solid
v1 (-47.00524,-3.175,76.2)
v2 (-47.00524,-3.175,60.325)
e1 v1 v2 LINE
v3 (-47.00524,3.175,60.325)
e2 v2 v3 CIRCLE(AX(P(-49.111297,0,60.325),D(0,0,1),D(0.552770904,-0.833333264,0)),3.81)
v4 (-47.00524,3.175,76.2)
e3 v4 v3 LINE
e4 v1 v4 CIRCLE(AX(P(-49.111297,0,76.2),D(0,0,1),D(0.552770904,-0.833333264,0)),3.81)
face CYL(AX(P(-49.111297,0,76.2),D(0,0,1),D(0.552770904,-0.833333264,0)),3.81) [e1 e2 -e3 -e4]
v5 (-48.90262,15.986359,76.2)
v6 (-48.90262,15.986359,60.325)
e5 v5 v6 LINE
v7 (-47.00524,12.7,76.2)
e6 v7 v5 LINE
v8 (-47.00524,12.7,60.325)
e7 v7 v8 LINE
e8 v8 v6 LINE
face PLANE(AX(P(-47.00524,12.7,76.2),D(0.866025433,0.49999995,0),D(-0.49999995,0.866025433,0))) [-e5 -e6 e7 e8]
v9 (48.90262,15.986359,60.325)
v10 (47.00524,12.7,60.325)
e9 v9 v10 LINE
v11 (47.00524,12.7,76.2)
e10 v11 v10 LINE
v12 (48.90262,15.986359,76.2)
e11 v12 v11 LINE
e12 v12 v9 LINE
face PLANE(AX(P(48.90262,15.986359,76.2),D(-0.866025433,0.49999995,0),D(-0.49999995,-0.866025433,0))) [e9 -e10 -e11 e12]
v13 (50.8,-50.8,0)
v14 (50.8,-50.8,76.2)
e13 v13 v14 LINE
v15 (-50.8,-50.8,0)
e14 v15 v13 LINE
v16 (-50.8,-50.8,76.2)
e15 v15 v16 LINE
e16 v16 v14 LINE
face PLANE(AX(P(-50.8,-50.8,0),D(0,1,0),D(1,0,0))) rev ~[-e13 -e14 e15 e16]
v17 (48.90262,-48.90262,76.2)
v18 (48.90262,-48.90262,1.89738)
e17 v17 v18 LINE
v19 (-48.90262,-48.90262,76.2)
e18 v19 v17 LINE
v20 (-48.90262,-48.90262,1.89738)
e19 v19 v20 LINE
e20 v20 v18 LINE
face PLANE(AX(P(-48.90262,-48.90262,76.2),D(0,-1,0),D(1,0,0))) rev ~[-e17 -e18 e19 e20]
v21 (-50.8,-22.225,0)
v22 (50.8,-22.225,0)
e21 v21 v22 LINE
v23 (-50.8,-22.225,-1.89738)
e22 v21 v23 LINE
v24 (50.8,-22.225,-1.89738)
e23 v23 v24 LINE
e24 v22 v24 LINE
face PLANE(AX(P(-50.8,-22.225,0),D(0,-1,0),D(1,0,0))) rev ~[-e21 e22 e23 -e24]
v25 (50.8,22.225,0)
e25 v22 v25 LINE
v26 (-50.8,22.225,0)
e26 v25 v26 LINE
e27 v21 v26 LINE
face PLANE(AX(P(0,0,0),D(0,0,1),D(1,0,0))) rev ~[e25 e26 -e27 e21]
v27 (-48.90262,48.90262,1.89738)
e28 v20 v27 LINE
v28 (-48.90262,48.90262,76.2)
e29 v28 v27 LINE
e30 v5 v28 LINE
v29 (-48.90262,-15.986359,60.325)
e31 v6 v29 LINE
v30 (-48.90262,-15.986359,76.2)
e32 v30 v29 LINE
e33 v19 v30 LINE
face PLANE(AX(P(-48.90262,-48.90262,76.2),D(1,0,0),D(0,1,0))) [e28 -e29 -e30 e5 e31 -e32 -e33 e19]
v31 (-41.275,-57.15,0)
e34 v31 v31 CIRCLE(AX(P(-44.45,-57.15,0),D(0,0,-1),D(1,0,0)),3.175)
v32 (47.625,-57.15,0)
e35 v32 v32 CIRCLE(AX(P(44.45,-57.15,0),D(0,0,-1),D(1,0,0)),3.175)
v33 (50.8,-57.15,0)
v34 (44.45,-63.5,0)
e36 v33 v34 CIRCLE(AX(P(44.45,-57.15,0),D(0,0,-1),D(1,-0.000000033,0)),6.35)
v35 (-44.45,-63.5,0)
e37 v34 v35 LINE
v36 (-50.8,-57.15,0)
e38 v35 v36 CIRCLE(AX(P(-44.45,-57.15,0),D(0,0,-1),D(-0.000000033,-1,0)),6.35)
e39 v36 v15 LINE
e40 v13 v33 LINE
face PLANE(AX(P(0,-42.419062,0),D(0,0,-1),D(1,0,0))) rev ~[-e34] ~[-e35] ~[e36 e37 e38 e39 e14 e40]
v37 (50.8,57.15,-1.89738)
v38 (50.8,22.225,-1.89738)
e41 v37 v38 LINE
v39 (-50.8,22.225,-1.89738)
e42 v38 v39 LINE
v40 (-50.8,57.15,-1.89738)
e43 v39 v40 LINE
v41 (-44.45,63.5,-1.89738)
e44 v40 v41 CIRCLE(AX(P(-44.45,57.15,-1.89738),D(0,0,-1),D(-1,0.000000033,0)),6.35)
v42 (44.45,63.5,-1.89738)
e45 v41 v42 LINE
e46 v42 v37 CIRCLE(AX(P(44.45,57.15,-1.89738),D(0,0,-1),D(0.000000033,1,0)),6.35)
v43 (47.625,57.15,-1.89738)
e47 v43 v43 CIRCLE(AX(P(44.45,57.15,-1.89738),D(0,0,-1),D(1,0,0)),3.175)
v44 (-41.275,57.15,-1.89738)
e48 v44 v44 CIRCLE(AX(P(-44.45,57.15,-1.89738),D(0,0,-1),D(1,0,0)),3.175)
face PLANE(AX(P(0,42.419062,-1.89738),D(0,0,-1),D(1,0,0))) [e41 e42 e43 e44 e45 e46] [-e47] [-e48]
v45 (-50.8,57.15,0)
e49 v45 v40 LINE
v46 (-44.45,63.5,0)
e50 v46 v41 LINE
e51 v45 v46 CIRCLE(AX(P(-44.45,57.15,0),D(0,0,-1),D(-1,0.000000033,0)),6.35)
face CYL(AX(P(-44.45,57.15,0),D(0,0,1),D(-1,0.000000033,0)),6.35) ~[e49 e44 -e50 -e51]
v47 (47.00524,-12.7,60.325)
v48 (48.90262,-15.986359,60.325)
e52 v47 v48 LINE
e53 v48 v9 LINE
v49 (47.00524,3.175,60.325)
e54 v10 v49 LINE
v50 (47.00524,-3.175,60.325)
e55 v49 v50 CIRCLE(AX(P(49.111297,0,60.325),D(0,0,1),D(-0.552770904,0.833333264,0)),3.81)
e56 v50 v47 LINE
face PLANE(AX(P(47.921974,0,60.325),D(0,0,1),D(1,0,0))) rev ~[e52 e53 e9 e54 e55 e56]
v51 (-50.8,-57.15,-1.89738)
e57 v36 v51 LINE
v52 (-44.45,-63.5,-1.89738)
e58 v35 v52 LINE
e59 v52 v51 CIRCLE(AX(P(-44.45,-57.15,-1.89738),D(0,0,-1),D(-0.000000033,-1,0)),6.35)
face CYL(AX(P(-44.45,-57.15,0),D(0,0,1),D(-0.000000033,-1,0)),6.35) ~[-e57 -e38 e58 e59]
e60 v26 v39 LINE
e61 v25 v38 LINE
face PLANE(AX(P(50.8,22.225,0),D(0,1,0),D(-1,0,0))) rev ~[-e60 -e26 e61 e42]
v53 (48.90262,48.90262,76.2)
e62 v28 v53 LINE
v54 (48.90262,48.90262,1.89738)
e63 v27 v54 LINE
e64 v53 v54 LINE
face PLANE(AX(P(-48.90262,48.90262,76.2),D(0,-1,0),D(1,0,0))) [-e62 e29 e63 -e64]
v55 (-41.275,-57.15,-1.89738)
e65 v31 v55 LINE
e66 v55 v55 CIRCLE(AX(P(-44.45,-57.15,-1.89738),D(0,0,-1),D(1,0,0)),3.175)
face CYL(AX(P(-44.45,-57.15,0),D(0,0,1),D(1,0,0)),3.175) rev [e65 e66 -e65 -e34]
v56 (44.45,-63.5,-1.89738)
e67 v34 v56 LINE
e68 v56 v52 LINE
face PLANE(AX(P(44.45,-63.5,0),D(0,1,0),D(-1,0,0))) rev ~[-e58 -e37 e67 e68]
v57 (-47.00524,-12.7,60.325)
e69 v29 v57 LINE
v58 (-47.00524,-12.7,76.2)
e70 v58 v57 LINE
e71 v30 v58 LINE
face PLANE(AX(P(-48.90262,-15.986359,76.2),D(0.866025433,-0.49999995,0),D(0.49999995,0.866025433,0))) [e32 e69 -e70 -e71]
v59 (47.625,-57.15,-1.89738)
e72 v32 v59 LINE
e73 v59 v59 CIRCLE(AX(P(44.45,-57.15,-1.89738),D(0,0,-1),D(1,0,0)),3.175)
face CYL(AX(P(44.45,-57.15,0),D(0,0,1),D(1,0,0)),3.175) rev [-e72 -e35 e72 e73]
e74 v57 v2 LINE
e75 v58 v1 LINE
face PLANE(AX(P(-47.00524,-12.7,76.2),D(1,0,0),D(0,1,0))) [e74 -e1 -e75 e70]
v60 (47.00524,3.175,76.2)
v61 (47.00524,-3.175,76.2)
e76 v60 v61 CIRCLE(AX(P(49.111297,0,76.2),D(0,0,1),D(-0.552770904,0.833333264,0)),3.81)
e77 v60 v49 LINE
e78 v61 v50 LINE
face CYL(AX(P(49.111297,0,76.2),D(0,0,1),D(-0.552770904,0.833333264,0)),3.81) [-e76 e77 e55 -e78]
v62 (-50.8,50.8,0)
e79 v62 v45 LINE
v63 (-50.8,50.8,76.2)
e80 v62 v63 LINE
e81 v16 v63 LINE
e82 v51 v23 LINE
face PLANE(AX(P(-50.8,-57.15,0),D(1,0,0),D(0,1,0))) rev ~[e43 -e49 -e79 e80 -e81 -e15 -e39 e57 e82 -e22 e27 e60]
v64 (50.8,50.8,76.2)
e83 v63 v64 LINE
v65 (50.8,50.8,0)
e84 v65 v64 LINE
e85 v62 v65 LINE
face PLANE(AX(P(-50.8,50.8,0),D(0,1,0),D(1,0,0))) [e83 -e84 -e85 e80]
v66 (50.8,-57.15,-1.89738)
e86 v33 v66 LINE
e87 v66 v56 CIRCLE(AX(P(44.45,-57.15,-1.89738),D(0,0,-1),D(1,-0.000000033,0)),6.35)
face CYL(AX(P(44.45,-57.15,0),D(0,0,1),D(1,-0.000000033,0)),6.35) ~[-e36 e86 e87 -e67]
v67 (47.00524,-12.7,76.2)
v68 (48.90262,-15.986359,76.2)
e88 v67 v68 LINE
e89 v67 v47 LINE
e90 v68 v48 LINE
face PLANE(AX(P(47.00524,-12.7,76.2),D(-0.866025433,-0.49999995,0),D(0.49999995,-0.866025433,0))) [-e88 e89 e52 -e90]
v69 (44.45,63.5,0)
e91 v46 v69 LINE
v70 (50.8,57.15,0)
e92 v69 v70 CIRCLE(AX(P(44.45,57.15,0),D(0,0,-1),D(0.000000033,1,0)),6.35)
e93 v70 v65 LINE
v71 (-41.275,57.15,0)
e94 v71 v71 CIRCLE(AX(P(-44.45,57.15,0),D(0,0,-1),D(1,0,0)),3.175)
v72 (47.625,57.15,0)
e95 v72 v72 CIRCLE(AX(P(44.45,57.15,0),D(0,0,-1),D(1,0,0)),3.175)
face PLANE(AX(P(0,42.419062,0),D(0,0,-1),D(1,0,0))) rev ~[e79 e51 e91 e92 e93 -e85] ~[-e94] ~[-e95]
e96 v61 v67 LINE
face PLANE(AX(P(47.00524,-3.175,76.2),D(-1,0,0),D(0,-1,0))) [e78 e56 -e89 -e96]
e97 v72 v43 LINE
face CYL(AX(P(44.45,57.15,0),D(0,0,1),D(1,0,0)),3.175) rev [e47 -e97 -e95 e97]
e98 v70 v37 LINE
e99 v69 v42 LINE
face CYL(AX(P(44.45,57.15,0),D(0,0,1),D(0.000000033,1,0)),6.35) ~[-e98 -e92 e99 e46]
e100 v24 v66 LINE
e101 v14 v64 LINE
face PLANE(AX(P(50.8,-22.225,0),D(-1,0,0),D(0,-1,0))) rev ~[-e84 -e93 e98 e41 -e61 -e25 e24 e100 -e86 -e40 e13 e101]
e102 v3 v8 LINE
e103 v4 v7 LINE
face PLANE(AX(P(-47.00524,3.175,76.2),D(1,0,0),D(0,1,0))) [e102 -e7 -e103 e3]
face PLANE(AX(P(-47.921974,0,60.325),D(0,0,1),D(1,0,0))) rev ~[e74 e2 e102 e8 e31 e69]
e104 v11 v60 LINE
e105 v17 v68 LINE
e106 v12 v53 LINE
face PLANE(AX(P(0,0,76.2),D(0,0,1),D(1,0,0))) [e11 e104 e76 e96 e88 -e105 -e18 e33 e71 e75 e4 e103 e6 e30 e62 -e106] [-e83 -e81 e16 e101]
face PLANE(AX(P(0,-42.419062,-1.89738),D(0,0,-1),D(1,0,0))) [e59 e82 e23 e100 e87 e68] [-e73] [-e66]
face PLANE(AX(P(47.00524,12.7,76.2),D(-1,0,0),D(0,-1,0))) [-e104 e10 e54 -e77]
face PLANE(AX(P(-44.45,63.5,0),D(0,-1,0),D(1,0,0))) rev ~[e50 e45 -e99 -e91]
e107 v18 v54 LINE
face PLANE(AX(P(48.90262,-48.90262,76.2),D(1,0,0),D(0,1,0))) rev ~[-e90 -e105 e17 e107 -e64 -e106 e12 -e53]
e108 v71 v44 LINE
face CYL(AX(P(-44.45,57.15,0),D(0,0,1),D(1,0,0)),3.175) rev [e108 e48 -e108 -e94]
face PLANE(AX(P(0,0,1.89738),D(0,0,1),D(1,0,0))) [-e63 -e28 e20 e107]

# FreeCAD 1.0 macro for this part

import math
import FreeCAD as App
import Part
import Sketcher

V = App.Vector
Q = App.Units.Quantity

doc = App.newDocument("Part")
body = doc.addObject("PartDesign::Body", "Body")

# Sketch on XY plane
sketch1 = doc.addObject("Sketcher::SketchObject", "Sketch")
body.addObject(sketch1)
sketch1.AttachmentSupport = (doc.XY_Plane, [""])
sketch1.MapMode = "FlatFace"
sketch1.addGeometry(Part.LineSegment(V(-51, 51, 0), V(-51, -51, 0)), False)
sketch1.addGeometry(Part.LineSegment(V(-51, -51, 0), V(51, -51, 0)), False)
sketch1.addGeometry(Part.LineSegment(V(51, -51, 0), V(51, 51, 0)), False)
sketch1.addGeometry(Part.LineSegment(V(51, 51, 0), V(-51, 51, 0)), False)
sketch1.addConstraint(Sketcher.Constraint("Coincident", 0, 2, 1, 1))
sketch1.addConstraint(Sketcher.Constraint("Coincident", 1, 2, 2, 1))
sketch1.addConstraint(Sketcher.Constraint("Coincident", 2, 2, 3, 1))
sketch1.addConstraint(Sketcher.Constraint("Coincident", 3, 2, 0, 1))
sketch1.addConstraint(Sketcher.Constraint("Vertical", 0))
sketch1.addConstraint(Sketcher.Constraint("Horizontal", 1))
sketch1.addConstraint(Sketcher.Constraint("Vertical", 2))
sketch1.addConstraint(Sketcher.Constraint("Horizontal", 3))
sketch1.addConstraint(Sketcher.Constraint("Symmetric", 0, 2, 2, 2, -1, 1))
sketch1.addConstraint(Sketcher.Constraint("Equal", 3, 0))
sketch1.addConstraint(Sketcher.Constraint("DistanceX", 1, 1, 1, 2, Q("4 in")))
pad1 = doc.addObject("PartDesign::Pad", "Pad")
body.addObject(pad1)
pad1.Profile = sketch1
pad1.Length = Q("3 in")

# Sketch on XY plane
sketch2 = doc.addObject("Sketcher::SketchObject", "Sketch001")
body.addObject(sketch2)
sketch2.AttachmentSupport = (doc.XY_Plane, [""])
sketch2.MapMode = "FlatFace"
sketch2.AttachmentOffset = App.Placement(V(0, 0, 3 * 25.4), App.Rotation())
sketch2.addGeometry(Part.LineSegment(V(-49, 49, 0), V(-49, -49, 0)), False)
sketch2.addGeometry(Part.LineSegment(V(-49, -49, 0), V(49, -49, 0)), False)
sketch2.addGeometry(Part.LineSegment(V(49, -49, 0), V(49, 49, 0)), False)
sketch2.addGeometry(Part.LineSegment(V(49, 49, 0), V(-49, 49, 0)), False)
sketch2.addConstraint(Sketcher.Constraint("Coincident", 0, 2, 1, 1))
sketch2.addConstraint(Sketcher.Constraint("Coincident", 1, 2, 2, 1))
sketch2.addConstraint(Sketcher.Constraint("Coincident", 2, 2, 3, 1))
sketch2.addConstraint(Sketcher.Constraint("Coincident", 3, 2, 0, 1))
sketch2.addConstraint(Sketcher.Constraint("Vertical", 0))
sketch2.addConstraint(Sketcher.Constraint("Horizontal", 1))
sketch2.addConstraint(Sketcher.Constraint("Vertical", 2))
sketch2.addConstraint(Sketcher.Constraint("Horizontal", 3))
sketch2.addConstraint(Sketcher.Constraint("Symmetric", 0, 2, 2, 2, -1, 1))
sketch2.addConstraint(Sketcher.Constraint("Equal", 3, 0))
sketch2.addConstraint(Sketcher.Constraint("DistanceX", 1, 1, 1, 2, Q("3.8506 in")))
pocket1 = doc.addObject("PartDesign::Pocket", "Pocket")
body.addObject(pocket1)
pocket1.Profile = sketch2
pocket1.Length = Q("2.9253 in")

# Sketch on XY plane
sketch3 = doc.addObject("Sketcher::SketchObject", "Sketch002")
body.addObject(sketch3)
sketch3.AttachmentSupport = (doc.XY_Plane, [""])
sketch3.MapMode = "FlatFace"
sketch3.AttachmentOffset = App.Placement(V(0, 0, 3 * 25.4), App.Rotation())
sketch3.addGeometry(Part.LineSegment(V(-47, 12.7, 0), V(-48.9, 16, 0)), False)
sketch3.addGeometry(Part.LineSegment(V(-48.9, 16, 0), V(-48.9, -16, 0)), False)
sketch3.addGeometry(Part.LineSegment(V(-48.9, -16, 0), V(-47, -12.7, 0)), False)
sketch3.addGeometry(Part.LineSegment(V(-47, -12.7, 0), V(-47, -3.2, 0)), False)
sketch3.addGeometry(Part.ArcOfCircle(Part.Circle(V(-49.1, 0, 0), V(0, 0, 1), 3.8), math.radians(-56), math.radians(56)), False)
sketch3.addGeometry(Part.LineSegment(V(-47, 3.2, 0), V(-47, 12.7, 0)), False)
sketch3.addGeometry(Part.LineSegment(V(48.9, -16, 0), V(48.9, 16, 0)), False)
sketch3.addGeometry(Part.LineSegment(V(48.9, 16, 0), V(47, 12.7, 0)), False)
sketch3.addGeometry(Part.LineSegment(V(47, 12.7, 0), V(47, 3.2, 0)), False)
sketch3.addGeometry(Part.ArcOfCircle(Part.Circle(V(49.1, 0, 0), V(0, 0, 1), 3.8), math.radians(124), math.radians(236)), False)
sketch3.addGeometry(Part.LineSegment(V(47, -3.2, 0), V(47, -12.7, 0)), False)
sketch3.addGeometry(Part.LineSegment(V(47, -12.7, 0), V(48.9, -16, 0)), False)
sketch3.addConstraint(Sketcher.Constraint("Coincident", 0, 2, 1, 1))
sketch3.addConstraint(Sketcher.Constraint("Coincident", 1, 2, 2, 1))
sketch3.addConstraint(Sketcher.Constraint("Coincident", 2, 2, 3, 1))
sketch3.addConstraint(Sketcher.Constraint("Coincident", 3, 2, 4, 1))
sketch3.addConstraint(Sketcher.Constraint("Coincident", 4, 2, 5, 1))
sketch3.addConstraint(Sketcher.Constraint("Coincident", 5, 2, 0, 1))
sketch3.addConstraint(Sketcher.Constraint("Coincident", 6, 2, 7, 1))
sketch3.addConstraint(Sketcher.Constraint("Coincident", 7, 2, 8, 1))
sketch3.addConstraint(Sketcher.Constraint("Coincident", 8, 2, 9, 1))
sketch3.addConstraint(Sketcher.Constraint("Coincident", 9, 2, 10, 1))
sketch3.addConstraint(Sketcher.Constraint("Coincident", 10, 2, 11, 1))
sketch3.addConstraint(Sketcher.Constraint("Coincident", 11, 2, 6, 1))
sketch3.addConstraint(Sketcher.Constraint("Vertical", 1))
sketch3.addConstraint(Sketcher.Constraint("Vertical", 3))
sketch3.addConstraint(Sketcher.Constraint("Vertical", 5))
sketch3.addConstraint(Sketcher.Constraint("Vertical", 6))
sketch3.addConstraint(Sketcher.Constraint("Vertical", 8))
sketch3.addConstraint(Sketcher.Constraint("Vertical", 10))
sketch3.addConstraint(Sketcher.Constraint("Equal", 4, 9))
sketch3.addConstraint(Sketcher.Constraint("Symmetric", 4, 3, 9, 3, -1, 1))
sketch3.addConstraint(Sketcher.Constraint("Symmetric", 1, 2, 6, 2, -1, 1))
sketch3.addConstraint(Sketcher.Constraint("Symmetric", 2, 2, 7, 2, -1, 1))
sketch3.addConstraint(Sketcher.Constraint("Symmetric", 5, 2, 10, 2, -1, 1))
sketch3.addConstraint(Sketcher.Constraint("Symmetric", 5, 2, 7, 2, -2))
sketch3.addConstraint(Sketcher.Constraint("PointOnObject", 4, 3, -1))
sketch3.addConstraint(Sketcher.Constraint("Parallel", 0, 11))
sketch3.addConstraint(Sketcher.Constraint("Horizontal", 0, 2, 6, 2))
sketch3.addConstraint(Sketcher.Constraint("Radius", 4, Q("0.15 in")))
sketch3.addConstraint(Sketcher.Constraint("Angle", 0, Q("119.999997 deg")))
sketch3.addConstraint(Sketcher.Constraint("DistanceY", 2, 2, 5, 2, Q("1 in")))
sketch3.addConstraint(Sketcher.Constraint("DistanceY", 3, 1, 3, 2, Q("0.375 in")))
sketch3.addConstraint(Sketcher.Constraint("Distance", 0, Q("0.1494 in")))
sketch3.addConstraint(Sketcher.Constraint("DistanceX", 0, 2, -1, 1, Q("1.9253 in")))
pad2 = doc.addObject("PartDesign::Pad", "Pad001")
body.addObject(pad2)
pad2.Profile = sketch3
pad2.Length = Q("0.625 in")
pad2.Reversed = True

# Sketch on XY plane
sketch4 = doc.addObject("Sketcher::SketchObject", "Sketch003")
body.addObject(sketch4)
sketch4.AttachmentSupport = (doc.XY_Plane, [""])
sketch4.MapMode = "FlatFace"
sketch4.addGeometry(Part.LineSegment(V(-50.8, -57.1, 0), V(-50.8, -22.2, 0)), False)
sketch4.addGeometry(Part.LineSegment(V(-50.8, -22.2, 0), V(50.8, -22.2, 0)), False)
sketch4.addGeometry(Part.LineSegment(V(50.8, -22.2, 0), V(50.8, -57.1, 0)), False)
sketch4.addGeometry(Part.ArcOfCircle(Part.Circle(V(44.4, -57.1, 0), V(0, 0, 1), 6.4), math.radians(-90), math.radians(0)), False)
sketch4.addGeometry(Part.LineSegment(V(44.5, -63.5, 0), V(-44.5, -63.5, 0)), False)
sketch4.addGeometry(Part.ArcOfCircle(Part.Circle(V(-44.4, -57.1, 0), V(0, 0, 1), 6.4), math.radians(-180), math.radians(-90)), False)
sketch4.addGeometry(Part.Circle(V(-44.5, -57.1, 0), V(0, 0, 1), 3.2), False)
sketch4.addGeometry(Part.Circle(V(44.5, -57.1, 0), V(0, 0, 1), 3.2), False)
sketch4.addGeometry(Part.LineSegment(V(50.8, 22.2, 0), V(-50.8, 22.2, 0)), False)
sketch4.addGeometry(Part.LineSegment(V(-50.8, 22.2, 0), V(-50.8, 57.1, 0)), False)
sketch4.addGeometry(Part.ArcOfCircle(Part.Circle(V(-44.4, 57.1, 0), V(0, 0, 1), 6.4), math.radians(90), math.radians(180)), False)
sketch4.addGeometry(Part.LineSegment(V(-44.5, 63.5, 0), V(44.5, 63.5, 0)), False)
sketch4.addGeometry(Part.ArcOfCircle(Part.Circle(V(44.4, 57.1, 0), V(0, 0, 1), 6.4), math.radians(0), math.radians(90)), False)
sketch4.addGeometry(Part.LineSegment(V(50.8, 57.1, 0), V(50.8, 22.2, 0)), False)
sketch4.addGeometry(Part.Circle(V(-44.5, 57.1, 0), V(0, 0, 1), 3.2), False)
sketch4.addGeometry(Part.Circle(V(44.5, 57.1, 0), V(0, 0, 1), 3.2), False)
sketch4.addConstraint(Sketcher.Constraint("Coincident", 0, 2, 1, 1))
sketch4.addConstraint(Sketcher.Constraint("Coincident", 1, 2, 2, 1))
sketch4.addConstraint(Sketcher.Constraint("Tangent", 2, 2, 3, 2))
sketch4.addConstraint(Sketcher.Constraint("Tangent", 3, 1, 4, 1))
sketch4.addConstraint(Sketcher.Constraint("Tangent", 4, 2, 5, 2))
sketch4.addConstraint(Sketcher.Constraint("Tangent", 5, 1, 0, 1))
sketch4.addConstraint(Sketcher.Constraint("Coincident", 8, 2, 9, 1))
sketch4.addConstraint(Sketcher.Constraint("Tangent", 9, 2, 10, 2))
sketch4.addConstraint(Sketcher.Constraint("Tangent", 10, 1, 11, 1))
sketch4.addConstraint(Sketcher.Constraint("Tangent", 11, 2, 12, 2))
sketch4.addConstraint(Sketcher.Constraint("Tangent", 12, 1, 13, 1))
sketch4.addConstraint(Sketcher.Constraint("Coincident", 13, 2, 8, 1))
sketch4.addConstraint(Sketcher.Constraint("Vertical", 0))
sketch4.addConstraint(Sketcher.Constraint("Horizontal", 1))
sketch4.addConstraint(Sketcher.Constraint("Vertical", 2))
sketch4.addConstraint(Sketcher.Constraint("Horizontal", 4))
sketch4.addConstraint(Sketcher.Constraint("Horizontal", 8))
sketch4.addConstraint(Sketcher.Constraint("Vertical", 9))
sketch4.addConstraint(Sketcher.Constraint("Horizontal", 11))
sketch4.addConstraint(Sketcher.Constraint("Vertical", 13))
sketch4.addConstraint(Sketcher.Constraint("Coincident", 6, 3, 5, 3))
sketch4.addConstraint(Sketcher.Constraint("Coincident", 7, 3, 3, 3))
sketch4.addConstraint(Sketcher.Constraint("Coincident", 14, 3, 10, 3))
sketch4.addConstraint(Sketcher.Constraint("Coincident", 15, 3, 12, 3))
sketch4.addConstraint(Sketcher.Constraint("Equal", 3, 5))
sketch4.addConstraint(Sketcher.Constraint("Equal", 6, 7))
sketch4.addConstraint(Sketcher.Constraint("Equal", 5, 10))
sketch4.addConstraint(Sketcher.Constraint("Equal", 10, 12))
sketch4.addConstraint(Sketcher.Constraint("Equal", 7, 14))
sketch4.addConstraint(Sketcher.Constraint("Equal", 14, 15))
sketch4.addConstraint(Sketcher.Constraint("Symmetric", 3, 3, 10, 3, -1, 1))
sketch4.addConstraint(Sketcher.Constraint("Symmetric", 0, 2, 13, 2, -1, 1))
sketch4.addConstraint(Sketcher.Constraint("Vertical", 6, 3, 10, 3))
sketch4.addConstraint(Sketcher.Constraint("Diameter", 6, Q("0.25 in")))
sketch4.addConstraint(Sketcher.Constraint("DistanceX", 1, 1, 1, 2, Q("4 in")))
sketch4.addConstraint(Sketcher.Constraint("Radius", 3, Q("0.25 in")))
sketch4.addConstraint(Sketcher.Constraint("DistanceY", 3, 1, -1, 1, Q("2.5 in")))
sketch4.addConstraint(Sketcher.Constraint("DistanceY", 0, 1, 0, 2, Q("1.375 in")))
pad3 = doc.addObject("PartDesign::Pad", "Pad002")
body.addObject(pad3)
pad3.Profile = sketch4
pad3.Length = Q("0.0747 in")
pad3.Reversed = True

doc.recompute()
